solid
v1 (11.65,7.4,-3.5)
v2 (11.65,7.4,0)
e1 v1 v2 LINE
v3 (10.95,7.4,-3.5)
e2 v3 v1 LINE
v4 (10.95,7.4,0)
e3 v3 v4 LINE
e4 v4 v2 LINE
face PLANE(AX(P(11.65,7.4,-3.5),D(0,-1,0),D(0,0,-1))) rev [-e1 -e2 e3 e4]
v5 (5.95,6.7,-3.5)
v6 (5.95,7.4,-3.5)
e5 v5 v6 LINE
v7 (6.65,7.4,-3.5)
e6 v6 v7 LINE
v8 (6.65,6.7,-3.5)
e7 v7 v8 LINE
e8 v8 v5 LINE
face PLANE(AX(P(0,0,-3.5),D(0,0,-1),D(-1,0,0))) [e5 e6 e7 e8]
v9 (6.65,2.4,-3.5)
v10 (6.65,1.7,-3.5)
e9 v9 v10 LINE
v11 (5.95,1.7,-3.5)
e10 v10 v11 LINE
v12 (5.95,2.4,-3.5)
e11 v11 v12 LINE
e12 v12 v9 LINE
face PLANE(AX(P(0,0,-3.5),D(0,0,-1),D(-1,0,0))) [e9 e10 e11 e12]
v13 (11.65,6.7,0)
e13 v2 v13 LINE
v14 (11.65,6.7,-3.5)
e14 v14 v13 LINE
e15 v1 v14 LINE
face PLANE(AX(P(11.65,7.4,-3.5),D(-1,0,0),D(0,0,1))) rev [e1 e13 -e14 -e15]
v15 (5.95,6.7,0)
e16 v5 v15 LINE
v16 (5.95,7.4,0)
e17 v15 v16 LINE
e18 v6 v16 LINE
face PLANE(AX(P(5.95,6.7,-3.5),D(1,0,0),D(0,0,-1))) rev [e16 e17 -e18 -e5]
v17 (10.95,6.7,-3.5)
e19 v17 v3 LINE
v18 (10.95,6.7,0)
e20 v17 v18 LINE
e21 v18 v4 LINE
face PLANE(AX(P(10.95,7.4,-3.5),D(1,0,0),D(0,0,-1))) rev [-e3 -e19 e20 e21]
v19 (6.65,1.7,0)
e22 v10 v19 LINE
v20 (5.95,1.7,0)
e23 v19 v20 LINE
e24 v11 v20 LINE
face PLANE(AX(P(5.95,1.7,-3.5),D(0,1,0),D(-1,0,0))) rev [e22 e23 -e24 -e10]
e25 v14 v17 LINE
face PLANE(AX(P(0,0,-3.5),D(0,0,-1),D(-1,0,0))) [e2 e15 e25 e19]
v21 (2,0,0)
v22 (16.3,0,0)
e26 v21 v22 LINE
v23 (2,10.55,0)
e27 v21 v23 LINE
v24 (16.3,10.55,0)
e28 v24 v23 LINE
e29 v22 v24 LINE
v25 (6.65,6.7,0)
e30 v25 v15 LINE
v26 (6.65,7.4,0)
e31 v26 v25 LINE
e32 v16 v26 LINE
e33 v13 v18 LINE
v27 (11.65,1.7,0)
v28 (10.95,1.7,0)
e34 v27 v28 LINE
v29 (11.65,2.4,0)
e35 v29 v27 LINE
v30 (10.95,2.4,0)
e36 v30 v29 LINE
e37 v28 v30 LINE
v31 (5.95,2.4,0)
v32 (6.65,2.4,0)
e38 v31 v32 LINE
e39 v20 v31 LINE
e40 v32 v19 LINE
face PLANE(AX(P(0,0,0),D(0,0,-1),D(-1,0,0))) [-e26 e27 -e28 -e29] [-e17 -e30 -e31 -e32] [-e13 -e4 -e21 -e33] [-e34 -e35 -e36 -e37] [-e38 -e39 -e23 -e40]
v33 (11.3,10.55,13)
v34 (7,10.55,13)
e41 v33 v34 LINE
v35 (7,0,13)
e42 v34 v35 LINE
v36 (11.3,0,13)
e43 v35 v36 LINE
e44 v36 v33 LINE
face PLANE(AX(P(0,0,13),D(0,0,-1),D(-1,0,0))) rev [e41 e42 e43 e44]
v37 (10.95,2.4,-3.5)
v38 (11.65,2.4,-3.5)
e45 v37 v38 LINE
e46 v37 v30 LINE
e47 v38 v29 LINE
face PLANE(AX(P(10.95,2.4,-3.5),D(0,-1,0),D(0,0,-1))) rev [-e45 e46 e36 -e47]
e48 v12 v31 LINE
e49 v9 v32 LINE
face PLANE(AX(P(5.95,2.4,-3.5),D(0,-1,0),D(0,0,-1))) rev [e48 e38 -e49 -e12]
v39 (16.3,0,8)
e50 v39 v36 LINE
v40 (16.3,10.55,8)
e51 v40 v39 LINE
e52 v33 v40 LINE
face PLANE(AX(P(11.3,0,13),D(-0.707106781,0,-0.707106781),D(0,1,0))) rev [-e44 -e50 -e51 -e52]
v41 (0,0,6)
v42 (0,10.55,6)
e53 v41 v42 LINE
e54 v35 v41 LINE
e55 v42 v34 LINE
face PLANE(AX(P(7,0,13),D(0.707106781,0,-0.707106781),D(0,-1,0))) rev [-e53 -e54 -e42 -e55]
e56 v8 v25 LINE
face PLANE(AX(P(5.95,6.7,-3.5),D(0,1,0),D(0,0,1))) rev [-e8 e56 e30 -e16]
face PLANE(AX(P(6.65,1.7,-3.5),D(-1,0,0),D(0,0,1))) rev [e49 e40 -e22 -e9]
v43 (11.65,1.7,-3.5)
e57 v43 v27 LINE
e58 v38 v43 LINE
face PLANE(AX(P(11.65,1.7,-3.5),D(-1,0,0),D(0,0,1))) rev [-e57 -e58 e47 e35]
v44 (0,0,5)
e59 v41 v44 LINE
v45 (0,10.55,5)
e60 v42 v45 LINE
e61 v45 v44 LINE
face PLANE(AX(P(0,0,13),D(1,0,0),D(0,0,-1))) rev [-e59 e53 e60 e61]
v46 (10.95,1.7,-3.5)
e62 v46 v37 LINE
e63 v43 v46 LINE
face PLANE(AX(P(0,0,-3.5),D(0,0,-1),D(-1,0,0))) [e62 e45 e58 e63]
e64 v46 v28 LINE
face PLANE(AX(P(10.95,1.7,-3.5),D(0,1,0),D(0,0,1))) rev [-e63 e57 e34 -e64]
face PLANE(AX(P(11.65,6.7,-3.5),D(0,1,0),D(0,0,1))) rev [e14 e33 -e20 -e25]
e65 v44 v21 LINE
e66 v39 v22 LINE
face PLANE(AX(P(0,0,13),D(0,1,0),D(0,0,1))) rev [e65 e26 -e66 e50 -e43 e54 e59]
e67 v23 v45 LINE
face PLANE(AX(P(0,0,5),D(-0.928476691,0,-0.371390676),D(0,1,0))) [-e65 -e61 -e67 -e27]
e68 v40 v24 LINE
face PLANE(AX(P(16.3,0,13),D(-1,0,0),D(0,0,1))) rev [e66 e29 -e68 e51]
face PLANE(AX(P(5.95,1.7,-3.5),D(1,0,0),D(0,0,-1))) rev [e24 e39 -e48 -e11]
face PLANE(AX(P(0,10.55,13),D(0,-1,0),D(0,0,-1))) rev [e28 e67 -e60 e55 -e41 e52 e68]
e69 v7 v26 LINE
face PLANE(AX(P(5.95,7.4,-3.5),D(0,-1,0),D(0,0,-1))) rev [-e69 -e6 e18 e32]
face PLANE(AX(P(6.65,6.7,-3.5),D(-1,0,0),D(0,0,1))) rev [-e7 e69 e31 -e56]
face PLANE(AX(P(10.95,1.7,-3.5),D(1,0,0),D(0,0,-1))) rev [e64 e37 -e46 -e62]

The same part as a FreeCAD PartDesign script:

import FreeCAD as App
import Part
import Sketcher


def edges_at(feature, points):
    """Names of the edges that pass closest to the given points."""
    edges = feature.Shape.Edges
    near = lambda p: min(range(len(edges)), key=lambda i: edges[i].distToShape(Part.Vertex(*p))[0])
    return sorted({f"Edge{near(p) + 1}" for p in points})


def add_polygon(sketch, points):
    """Adds a closed chain of lines whose ends are joined by coincident constraints."""
    first, n = sketch.GeometryCount, len(points)
    for a, b in zip(points, points[1:] + points[:1]):
        sketch.addGeometry(Part.LineSegment(App.Vector(*a, 0), App.Vector(*b, 0)), False)
    for i in range(n):
        sketch.addConstraint(Sketcher.Constraint("Coincident", first + i, 2, first + (i + 1) % n, 1))

doc = App.newDocument("Part")
params = doc.addObject("Spreadsheet::Sheet", "Params")
for row, (alias, value) in enumerate([
    ("sketch1_width", "16.3 mm"),
    ("sketch1_height", "10.55 mm"),
    ("pad1_length", "13 mm"),
    ("chamfer_size", "5 mm"),
    ("chamfer2_size", "2 mm"),
    ("chamfer2_size2", "5 mm"),
    ("chamfer3_size", "7 mm"),
    ("sketch2_width", "0.7 mm"),
    ("pad2_length", "3.5 mm"),
], start=1):
    params.set(f"A{row}", alias)
    params.set(f"B{row}", "=" + value)
    params.setAlias(f"B{row}", alias)

body = doc.addObject("PartDesign::Body", "Body")

# Sketch on XY plane
sketch1 = body.newObject("Sketcher::SketchObject", "Sketch")
sketch1.AttachmentSupport = (doc.getObject("XY_Plane"), [""])
sketch1.MapMode = "FlatFace"
add_polygon(sketch1, [(0, 11), (0, 0), (16, 0), (16, 11)])  # lines 0-3
sketch1.addConstraint([
    Sketcher.Constraint("Vertical", 0),
    Sketcher.Constraint("Horizontal", 1),
    Sketcher.Constraint("Vertical", 2),
    Sketcher.Constraint("Horizontal", 3),
    Sketcher.Constraint("Coincident", 0, 2, -1, 1),
    Sketcher.Constraint("DistanceX", 1, 1, 1, 2, 16.3),
    Sketcher.Constraint("DistanceY", 0, 2, 0, 1, 10.55),
])
sketch1.setExpression("Constraints[9]", "Params.sketch1_width")
sketch1.setExpression("Constraints[10]", "Params.sketch1_height")
pad1 = body.newObject("PartDesign::Pad", "Pad")
pad1.Profile = sketch1
pad1.setExpression("Length", "Params.pad1_length")
doc.recompute()

chamfer = body.newObject("PartDesign::Chamfer", "Chamfer")
chamfer.Base = (pad1, edges_at(pad1, [(16.3, 5.275, 13)]))
chamfer.setExpression("Size", "Params.chamfer_size")
doc.recompute()

chamfer2 = body.newObject("PartDesign::Chamfer", "Chamfer001")
chamfer2.Base = (chamfer, edges_at(chamfer, [(0, 5.275, 0)]))
chamfer2.ChamferType = "Two distances"
chamfer2.setExpression("Size", "Params.chamfer2_size")
chamfer2.setExpression("Size2", "Params.chamfer2_size2")
doc.recompute()

chamfer3 = body.newObject("PartDesign::Chamfer", "Chamfer002")
chamfer3.Base = (chamfer2, edges_at(chamfer2, [(0, 5.275, 13)]))
chamfer3.setExpression("Size", "Params.chamfer3_size")

# Sketch on XY plane
sketch2 = body.newObject("Sketcher::SketchObject", "Sketch001")
sketch2.AttachmentSupport = (doc.getObject("XY_Plane"), [""])
sketch2.MapMode = "FlatFace"
add_polygon(sketch2, [(6.7, 2.4), (6.7, 1.7), (6, 1.7), (6, 2.4)])  # lines 0-3
add_polygon(sketch2, [(6.7, 7.4), (6.7, 6.7), (6, 6.7), (6, 7.4)])  # lines 4-7
add_polygon(sketch2, [(11.7, 2.4), (11.7, 1.7), (10.9, 1.7), (10.9, 2.4)])  # lines 8-11
add_polygon(sketch2, [(11.7, 7.4), (11.7, 6.7), (10.9, 6.7), (10.9, 7.4)])  # lines 12-15
sketch2.addConstraint([
    Sketcher.Constraint("Vertical", 0),
    Sketcher.Constraint("Horizontal", 1),
    Sketcher.Constraint("Vertical", 2),
    Sketcher.Constraint("Horizontal", 3),
    Sketcher.Constraint("Vertical", 4),
    Sketcher.Constraint("Horizontal", 5),
    Sketcher.Constraint("Vertical", 6),
    Sketcher.Constraint("Horizontal", 7),
    Sketcher.Constraint("Vertical", 8),
    Sketcher.Constraint("Horizontal", 9),
    Sketcher.Constraint("Vertical", 10),
    Sketcher.Constraint("Horizontal", 11),
    Sketcher.Constraint("Vertical", 12),
    Sketcher.Constraint("Horizontal", 13),
    Sketcher.Constraint("Vertical", 14),
    Sketcher.Constraint("Horizontal", 15),
    Sketcher.Constraint("Horizontal", 1, 2, 8, 2),
    Sketcher.Constraint("Horizontal", 3, 2, 10, 2),
    Sketcher.Constraint("Horizontal", 5, 2, 12, 2),
    Sketcher.Constraint("Horizontal", 7, 2, 14, 2),
    Sketcher.Constraint("Vertical", 3, 2, 4, 2),
    Sketcher.Constraint("Vertical", 2, 2, 5, 2),
    Sketcher.Constraint("Vertical", 11, 2, 12, 2),
    Sketcher.Constraint("Vertical", 10, 2, 13, 2),
    Sketcher.Constraint("Equal", 7, 9),
    Sketcher.Constraint("Equal", 15, 0),
    Sketcher.Constraint("Equal", 2, 4),
    Sketcher.Constraint("DistanceX", 1, 2, 1, 1, 0.7),
    Sketcher.Constraint("DistanceY", 0, 2, 4, 2, 5.0),
    Sketcher.Constraint("DistanceX", 0, 2, 8, 2, 5.0),
    Sketcher.Constraint("DistanceY", -1, 1, 0, 2, 1.7),
    Sketcher.Constraint("DistanceX", -1, 1, 0, 2, 6.65),
])
sketch2.setExpression("Constraints[43]", "Params.sketch2_width")
pad2 = body.newObject("PartDesign::Pad", "Pad001")
pad2.Profile = sketch2
pad2.setExpression("Length", "Params.pad2_length")
pad2.Reversed = True

doc.recompute()
